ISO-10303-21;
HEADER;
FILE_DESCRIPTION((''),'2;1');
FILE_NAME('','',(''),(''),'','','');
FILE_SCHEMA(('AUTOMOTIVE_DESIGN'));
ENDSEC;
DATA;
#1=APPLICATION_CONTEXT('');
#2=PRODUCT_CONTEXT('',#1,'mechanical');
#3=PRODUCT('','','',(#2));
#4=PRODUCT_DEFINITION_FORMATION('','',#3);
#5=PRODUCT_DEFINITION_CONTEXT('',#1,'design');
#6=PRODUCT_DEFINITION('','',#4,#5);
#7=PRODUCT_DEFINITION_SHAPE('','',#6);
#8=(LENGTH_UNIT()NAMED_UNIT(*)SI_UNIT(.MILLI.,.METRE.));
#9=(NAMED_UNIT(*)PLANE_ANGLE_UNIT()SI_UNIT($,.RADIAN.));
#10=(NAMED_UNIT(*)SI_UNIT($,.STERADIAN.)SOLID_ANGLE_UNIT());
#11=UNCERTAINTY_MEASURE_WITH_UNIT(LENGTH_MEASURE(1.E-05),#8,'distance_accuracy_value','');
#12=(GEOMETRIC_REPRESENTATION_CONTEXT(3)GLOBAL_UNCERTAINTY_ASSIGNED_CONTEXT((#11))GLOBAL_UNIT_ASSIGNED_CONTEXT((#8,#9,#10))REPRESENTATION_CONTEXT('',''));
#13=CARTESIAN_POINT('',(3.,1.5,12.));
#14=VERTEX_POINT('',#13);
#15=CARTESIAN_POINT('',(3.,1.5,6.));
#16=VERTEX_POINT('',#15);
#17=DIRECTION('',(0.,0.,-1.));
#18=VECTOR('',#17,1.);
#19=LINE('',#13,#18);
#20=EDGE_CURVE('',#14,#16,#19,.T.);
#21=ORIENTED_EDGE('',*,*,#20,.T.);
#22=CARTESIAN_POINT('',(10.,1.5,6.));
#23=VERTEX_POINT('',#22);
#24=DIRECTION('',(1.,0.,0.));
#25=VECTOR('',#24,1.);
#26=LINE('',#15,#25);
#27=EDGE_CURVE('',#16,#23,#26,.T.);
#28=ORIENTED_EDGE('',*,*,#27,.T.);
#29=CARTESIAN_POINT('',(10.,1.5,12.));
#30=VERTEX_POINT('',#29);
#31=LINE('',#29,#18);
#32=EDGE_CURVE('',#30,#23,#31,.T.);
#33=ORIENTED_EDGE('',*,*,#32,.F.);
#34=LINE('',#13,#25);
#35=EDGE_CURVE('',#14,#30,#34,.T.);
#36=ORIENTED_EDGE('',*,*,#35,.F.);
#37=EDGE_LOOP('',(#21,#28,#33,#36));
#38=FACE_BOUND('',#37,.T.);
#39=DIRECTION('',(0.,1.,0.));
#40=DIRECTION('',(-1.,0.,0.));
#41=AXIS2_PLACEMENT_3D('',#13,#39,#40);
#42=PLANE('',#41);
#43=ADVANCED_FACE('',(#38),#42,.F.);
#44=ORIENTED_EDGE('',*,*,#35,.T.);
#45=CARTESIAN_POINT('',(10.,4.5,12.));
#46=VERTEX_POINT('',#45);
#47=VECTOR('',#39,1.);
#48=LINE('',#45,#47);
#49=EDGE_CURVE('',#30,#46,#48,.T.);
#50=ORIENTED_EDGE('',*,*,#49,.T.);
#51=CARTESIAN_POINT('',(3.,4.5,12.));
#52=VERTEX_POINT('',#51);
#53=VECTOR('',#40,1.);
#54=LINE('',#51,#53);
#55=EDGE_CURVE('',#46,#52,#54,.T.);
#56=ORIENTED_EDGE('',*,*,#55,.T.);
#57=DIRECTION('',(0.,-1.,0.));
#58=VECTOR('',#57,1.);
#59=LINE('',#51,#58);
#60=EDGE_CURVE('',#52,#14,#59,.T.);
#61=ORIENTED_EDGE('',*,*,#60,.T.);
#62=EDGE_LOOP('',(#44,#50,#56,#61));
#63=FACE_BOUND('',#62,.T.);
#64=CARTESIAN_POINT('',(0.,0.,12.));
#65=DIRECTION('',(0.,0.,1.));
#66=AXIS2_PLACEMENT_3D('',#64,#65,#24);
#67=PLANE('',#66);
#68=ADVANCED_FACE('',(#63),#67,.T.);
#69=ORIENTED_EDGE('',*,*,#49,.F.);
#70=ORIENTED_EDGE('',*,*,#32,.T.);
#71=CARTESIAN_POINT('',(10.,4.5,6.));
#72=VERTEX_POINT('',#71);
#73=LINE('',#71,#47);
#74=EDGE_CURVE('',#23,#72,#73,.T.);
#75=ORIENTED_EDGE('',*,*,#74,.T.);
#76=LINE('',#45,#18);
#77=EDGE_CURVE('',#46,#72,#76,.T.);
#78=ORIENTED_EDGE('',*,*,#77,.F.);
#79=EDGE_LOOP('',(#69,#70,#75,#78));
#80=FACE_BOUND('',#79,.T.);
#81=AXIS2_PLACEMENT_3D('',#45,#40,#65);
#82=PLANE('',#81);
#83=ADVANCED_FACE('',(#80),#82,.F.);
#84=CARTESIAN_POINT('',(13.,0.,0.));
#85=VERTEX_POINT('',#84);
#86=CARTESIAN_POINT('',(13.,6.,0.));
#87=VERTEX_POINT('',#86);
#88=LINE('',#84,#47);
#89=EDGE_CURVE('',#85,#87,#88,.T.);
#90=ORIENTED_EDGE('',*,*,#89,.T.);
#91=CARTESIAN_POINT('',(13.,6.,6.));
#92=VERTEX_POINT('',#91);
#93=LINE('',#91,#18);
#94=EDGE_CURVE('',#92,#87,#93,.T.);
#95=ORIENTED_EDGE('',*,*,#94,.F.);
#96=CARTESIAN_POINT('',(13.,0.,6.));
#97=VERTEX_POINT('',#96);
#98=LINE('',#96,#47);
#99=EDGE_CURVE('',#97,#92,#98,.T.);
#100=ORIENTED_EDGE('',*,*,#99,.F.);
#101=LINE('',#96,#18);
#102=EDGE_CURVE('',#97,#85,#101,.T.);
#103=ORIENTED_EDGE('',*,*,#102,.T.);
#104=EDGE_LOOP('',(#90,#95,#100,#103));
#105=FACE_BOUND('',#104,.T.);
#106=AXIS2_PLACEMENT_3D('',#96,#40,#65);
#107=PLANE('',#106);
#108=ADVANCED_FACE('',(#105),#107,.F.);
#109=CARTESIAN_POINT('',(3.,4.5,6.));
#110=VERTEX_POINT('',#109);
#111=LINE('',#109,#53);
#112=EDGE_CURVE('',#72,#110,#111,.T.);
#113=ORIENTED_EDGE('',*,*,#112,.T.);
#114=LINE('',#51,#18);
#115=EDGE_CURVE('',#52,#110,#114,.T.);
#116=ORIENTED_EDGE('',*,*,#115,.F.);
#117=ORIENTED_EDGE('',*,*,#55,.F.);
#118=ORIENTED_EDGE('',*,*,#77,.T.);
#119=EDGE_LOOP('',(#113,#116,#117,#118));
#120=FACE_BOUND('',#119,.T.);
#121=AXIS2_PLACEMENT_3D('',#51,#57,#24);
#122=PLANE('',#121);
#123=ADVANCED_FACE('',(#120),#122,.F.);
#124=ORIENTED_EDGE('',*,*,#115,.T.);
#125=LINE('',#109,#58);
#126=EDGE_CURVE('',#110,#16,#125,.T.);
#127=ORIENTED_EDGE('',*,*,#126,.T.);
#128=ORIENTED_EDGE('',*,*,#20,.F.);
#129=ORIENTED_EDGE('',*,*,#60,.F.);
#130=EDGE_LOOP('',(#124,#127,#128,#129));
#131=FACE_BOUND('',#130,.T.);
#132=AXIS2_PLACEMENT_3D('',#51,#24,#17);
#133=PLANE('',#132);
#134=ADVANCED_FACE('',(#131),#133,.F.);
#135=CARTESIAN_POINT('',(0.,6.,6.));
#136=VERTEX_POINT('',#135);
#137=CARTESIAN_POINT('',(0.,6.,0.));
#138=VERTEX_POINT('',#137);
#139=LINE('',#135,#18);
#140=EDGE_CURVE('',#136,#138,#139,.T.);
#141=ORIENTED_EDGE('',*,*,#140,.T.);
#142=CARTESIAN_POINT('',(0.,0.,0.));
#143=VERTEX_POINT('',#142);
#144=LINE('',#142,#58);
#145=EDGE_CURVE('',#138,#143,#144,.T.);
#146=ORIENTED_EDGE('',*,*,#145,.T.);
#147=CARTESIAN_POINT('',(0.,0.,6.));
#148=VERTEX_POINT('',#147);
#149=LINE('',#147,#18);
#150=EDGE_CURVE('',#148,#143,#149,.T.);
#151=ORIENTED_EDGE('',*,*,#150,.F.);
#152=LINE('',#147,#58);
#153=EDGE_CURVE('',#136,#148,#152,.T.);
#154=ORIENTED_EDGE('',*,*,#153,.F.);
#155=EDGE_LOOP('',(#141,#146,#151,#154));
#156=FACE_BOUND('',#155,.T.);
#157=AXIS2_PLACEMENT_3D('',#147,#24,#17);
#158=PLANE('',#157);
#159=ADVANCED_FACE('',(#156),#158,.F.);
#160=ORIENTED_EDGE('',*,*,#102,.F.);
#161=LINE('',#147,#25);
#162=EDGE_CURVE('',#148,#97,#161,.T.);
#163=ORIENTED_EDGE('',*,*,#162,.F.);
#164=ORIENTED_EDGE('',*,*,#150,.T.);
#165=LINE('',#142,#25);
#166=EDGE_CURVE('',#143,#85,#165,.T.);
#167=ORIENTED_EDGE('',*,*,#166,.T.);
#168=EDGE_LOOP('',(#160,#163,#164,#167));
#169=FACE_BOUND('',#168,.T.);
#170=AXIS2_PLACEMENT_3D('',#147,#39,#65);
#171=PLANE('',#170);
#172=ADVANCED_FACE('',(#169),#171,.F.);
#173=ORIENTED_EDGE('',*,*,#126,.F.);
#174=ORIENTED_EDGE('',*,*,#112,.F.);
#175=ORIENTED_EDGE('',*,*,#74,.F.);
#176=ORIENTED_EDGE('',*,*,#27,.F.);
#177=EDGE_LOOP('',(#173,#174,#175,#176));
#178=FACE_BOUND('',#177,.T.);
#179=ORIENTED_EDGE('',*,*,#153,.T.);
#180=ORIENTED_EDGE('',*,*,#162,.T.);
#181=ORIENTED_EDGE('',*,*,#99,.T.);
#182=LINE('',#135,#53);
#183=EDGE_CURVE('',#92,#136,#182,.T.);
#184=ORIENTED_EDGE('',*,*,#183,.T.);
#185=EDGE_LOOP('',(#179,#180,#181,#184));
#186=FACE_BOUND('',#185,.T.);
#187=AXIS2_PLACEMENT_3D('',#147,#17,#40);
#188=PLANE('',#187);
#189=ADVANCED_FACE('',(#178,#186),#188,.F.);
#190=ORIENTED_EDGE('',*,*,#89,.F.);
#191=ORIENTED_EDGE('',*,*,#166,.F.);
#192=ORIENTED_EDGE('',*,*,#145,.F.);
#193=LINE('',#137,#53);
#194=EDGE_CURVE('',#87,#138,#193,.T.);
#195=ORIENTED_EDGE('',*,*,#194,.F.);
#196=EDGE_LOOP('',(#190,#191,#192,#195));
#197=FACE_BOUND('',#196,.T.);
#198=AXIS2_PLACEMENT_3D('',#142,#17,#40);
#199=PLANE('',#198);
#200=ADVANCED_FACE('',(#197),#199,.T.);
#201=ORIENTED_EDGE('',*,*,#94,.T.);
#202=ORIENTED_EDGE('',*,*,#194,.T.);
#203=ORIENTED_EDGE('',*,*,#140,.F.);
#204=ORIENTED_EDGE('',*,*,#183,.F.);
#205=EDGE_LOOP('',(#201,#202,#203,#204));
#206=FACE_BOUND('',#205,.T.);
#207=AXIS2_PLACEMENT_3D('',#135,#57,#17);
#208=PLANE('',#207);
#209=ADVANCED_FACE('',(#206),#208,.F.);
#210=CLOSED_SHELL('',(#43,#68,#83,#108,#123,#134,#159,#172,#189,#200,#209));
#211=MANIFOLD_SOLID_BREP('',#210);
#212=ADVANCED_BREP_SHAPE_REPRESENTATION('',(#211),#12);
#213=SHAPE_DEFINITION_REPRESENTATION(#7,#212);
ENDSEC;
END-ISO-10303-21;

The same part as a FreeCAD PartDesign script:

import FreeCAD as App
import Part
import Sketcher
Q = App.Units.Quantity


def add_polygon(sketch, points):
    """Adds a closed chain of lines whose ends are joined by coincident constraints."""
    first, n = sketch.GeometryCount, len(points)
    for a, b in zip(points, points[1:] + points[:1]):
        sketch.addGeometry(Part.LineSegment(App.Vector(*a, 0), App.Vector(*b, 0)), False)
    for i in range(n):
        sketch.addConstraint(Sketcher.Constraint("Coincident", first + i, 2, first + (i + 1) % n, 1))

doc = App.newDocument("Part")
params = doc.addObject("Spreadsheet::Sheet", "Params")
for row, (alias, value) in enumerate([
    ("sketch1_width", "13 mm"),
    ("sketch1_height", "6 mm"),
    ("pad1_length", "6 mm"),
    ("sketch2_width", "7 mm"),
    ("sketch2_height", "3 mm"),
    ("pad2_length", "6 mm"),
], start=1):
    params.set(f"A{row}", alias)
    params.set(f"B{row}", "=" + value)
    params.setAlias(f"B{row}", alias)

body = doc.addObject("PartDesign::Body", "Body")

# Sketch on XY plane
sketch1 = body.newObject("Sketcher::SketchObject", "Sketch")
sketch1.AttachmentSupport = (doc.getObject("XY_Plane"), [""])
sketch1.MapMode = "FlatFace"
add_polygon(sketch1, [(0, 6), (0, 0), (13, 0), (13, 6)])  # lines 0-3
sketch1.addConstraint(Sketcher.Constraint("Vertical", 0))
sketch1.addConstraint(Sketcher.Constraint("Horizontal", 1))
sketch1.addConstraint(Sketcher.Constraint("Vertical", 2))
sketch1.addConstraint(Sketcher.Constraint("Horizontal", 3))
sketch1.addConstraint(Sketcher.Constraint("Coincident", 0, 2, -1, 1))
sketch1.addConstraint(Sketcher.Constraint("DistanceX", 1, 1, 1, 2, Q("13 mm")))
sketch1.addConstraint(Sketcher.Constraint("DistanceY", 0, 2, 0, 1, Q("6 mm")))
sketch1.setExpression("Constraints[9]", "Params.sketch1_width")
sketch1.setExpression("Constraints[10]", "Params.sketch1_height")
pad1 = body.newObject("PartDesign::Pad", "Pad")
pad1.Profile = sketch1
pad1.setExpression("Length", "Params.pad1_length")

# Sketch on XY plane
sketch2 = body.newObject("Sketcher::SketchObject", "Sketch001")
sketch2.AttachmentSupport = (doc.getObject("XY_Plane"), [""])
sketch2.MapMode = "FlatFace"
sketch2.AttachmentOffset = App.Placement(App.Vector(0, 0, 6), App.Rotation())
add_polygon(sketch2, [(3, 4.5), (3, 1.5), (10, 1.5), (10, 4.5)])  # lines 0-3
sketch2.addConstraint(Sketcher.Constraint("Vertical", 0))
sketch2.addConstraint(Sketcher.Constraint("Horizontal", 1))
sketch2.addConstraint(Sketcher.Constraint("Vertical", 2))
sketch2.addConstraint(Sketcher.Constraint("Horizontal", 3))
sketch2.addConstraint(Sketcher.Constraint("DistanceX", 1, 1, 1, 2, Q("7 mm")))
sketch2.addConstraint(Sketcher.Constraint("DistanceY", 0, 2, 0, 1, Q("3 mm")))
sketch2.addConstraint(Sketcher.Constraint("DistanceX", -1, 1, 0, 2, Q("3 mm")))
sketch2.addConstraint(Sketcher.Constraint("DistanceY", -1, 1, 0, 2, Q("1.5 mm")))
sketch2.setExpression("Constraints[8]", "Params.sketch2_width")
sketch2.setExpression("Constraints[9]", "Params.sketch2_height")
pad2 = body.newObject("PartDesign::Pad", "Pad001")
pad2.Profile = sketch2
pad2.setExpression("Length", "Params.pad2_length")

doc.recompute()
